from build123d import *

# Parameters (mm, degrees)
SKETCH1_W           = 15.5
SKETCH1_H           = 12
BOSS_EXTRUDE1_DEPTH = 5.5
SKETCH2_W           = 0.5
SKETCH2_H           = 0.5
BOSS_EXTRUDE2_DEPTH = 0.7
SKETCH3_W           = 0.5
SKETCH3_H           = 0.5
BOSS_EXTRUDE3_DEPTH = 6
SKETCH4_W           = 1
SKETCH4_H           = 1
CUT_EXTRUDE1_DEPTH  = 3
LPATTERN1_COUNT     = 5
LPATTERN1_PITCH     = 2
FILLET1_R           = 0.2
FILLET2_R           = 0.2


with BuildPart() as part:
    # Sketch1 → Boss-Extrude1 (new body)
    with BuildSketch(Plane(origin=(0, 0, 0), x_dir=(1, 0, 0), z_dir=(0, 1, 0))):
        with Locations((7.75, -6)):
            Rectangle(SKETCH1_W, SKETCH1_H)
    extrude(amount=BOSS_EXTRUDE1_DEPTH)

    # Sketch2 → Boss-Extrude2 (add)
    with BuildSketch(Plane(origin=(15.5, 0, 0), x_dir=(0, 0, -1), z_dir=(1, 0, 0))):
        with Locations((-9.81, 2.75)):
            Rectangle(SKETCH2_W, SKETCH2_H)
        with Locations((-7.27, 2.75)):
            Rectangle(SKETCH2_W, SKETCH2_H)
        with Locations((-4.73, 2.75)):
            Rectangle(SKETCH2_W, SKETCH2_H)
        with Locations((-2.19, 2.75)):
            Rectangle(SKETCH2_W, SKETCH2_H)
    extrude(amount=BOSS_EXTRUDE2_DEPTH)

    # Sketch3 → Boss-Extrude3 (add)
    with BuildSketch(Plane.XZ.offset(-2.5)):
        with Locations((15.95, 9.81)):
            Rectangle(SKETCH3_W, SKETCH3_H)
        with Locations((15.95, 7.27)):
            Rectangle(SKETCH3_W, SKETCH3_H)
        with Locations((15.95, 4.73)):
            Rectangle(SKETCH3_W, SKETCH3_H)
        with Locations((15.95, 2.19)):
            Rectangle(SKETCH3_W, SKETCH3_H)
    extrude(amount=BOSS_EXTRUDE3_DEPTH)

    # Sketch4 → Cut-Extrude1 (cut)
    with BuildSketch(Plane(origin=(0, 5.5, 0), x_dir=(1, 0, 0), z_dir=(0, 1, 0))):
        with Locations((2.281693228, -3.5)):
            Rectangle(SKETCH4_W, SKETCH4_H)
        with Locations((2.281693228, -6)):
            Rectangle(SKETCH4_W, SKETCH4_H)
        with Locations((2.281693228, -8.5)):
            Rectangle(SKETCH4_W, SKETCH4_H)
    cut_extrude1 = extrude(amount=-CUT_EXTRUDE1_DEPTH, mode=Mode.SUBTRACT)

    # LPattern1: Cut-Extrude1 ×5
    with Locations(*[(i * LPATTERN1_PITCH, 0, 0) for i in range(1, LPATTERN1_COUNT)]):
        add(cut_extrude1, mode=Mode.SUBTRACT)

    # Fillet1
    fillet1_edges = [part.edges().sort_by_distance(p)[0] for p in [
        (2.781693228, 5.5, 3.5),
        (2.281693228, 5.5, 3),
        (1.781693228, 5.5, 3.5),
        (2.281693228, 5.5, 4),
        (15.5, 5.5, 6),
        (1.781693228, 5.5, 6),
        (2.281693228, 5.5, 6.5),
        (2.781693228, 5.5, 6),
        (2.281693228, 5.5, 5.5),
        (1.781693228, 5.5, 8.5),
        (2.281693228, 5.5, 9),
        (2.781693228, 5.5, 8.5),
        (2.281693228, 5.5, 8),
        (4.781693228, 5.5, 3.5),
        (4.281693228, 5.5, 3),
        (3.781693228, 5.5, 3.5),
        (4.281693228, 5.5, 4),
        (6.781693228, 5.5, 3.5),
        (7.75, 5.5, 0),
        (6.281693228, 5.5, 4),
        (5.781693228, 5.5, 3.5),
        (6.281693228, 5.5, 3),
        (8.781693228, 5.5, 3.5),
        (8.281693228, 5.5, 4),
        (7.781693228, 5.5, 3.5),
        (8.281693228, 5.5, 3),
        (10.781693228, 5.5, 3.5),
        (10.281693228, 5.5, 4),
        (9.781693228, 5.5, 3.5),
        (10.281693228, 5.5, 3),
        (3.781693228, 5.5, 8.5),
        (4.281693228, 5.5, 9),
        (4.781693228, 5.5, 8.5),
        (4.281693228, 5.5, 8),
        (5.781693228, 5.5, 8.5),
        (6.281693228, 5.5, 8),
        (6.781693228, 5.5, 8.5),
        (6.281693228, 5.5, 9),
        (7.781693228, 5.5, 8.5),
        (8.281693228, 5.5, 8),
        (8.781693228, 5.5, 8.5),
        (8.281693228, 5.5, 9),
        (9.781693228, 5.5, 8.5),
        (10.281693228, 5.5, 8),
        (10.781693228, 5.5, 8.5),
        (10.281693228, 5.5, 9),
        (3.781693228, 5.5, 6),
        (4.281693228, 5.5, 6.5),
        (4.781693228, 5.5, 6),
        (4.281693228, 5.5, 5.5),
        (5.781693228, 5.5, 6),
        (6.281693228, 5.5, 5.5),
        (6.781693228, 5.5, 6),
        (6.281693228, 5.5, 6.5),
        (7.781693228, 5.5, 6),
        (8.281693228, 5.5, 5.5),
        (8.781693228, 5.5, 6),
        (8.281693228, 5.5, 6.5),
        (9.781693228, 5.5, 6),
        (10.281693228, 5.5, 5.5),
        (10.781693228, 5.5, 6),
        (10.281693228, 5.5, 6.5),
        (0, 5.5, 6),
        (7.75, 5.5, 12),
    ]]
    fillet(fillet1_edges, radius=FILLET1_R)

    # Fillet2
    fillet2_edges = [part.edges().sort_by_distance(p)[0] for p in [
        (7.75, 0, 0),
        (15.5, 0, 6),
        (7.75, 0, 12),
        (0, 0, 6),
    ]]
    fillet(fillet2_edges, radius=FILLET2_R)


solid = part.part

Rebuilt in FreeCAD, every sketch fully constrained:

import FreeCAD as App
import Part
import Sketcher


def edges_at(feature, points):
    """Names of the edges that pass closest to the given points."""
    edges = feature.Shape.Edges
    near = lambda p: min(range(len(edges)), key=lambda i: edges[i].distToShape(Part.Vertex(*p))[0])
    return sorted({f"Edge{near(p) + 1}" for p in points})

doc = App.newDocument("Part")
params = doc.addObject("Spreadsheet::Sheet", "Params")
for row, (alias, value) in enumerate([
    ("sketch1_height", "12 mm"),
    ("sketch1_width", "15.5 mm"),
    ("pad1_length", "5.5 mm"),
    ("sketch2_width", "0.5 mm"),
    ("pad2_length", "0.7 mm"),
    ("sketch3_width", "0.5 mm"),
    ("pad3_length", "6 mm"),
    ("sketch4_width", "1 mm"),
    ("pocket1_length", "3 mm"),
    ("linearpattern_pitch", "2 mm"),
    ("fillet_radius", "0.2 mm"),
    ("fillet2_radius", "0.2 mm"),
], start=1):
    params.set(f"A{row}", alias)
    params.set(f"B{row}", "=" + value)
    params.setAlias(f"B{row}", alias)

body = doc.addObject("PartDesign::Body", "Body")

# Sketch on XZ plane
sketch1 = doc.addObject("Sketcher::SketchObject", "Sketch")
body.addObject(sketch1)
sketch1.AttachmentSupport = (doc.XZ_Plane, [""])
sketch1.MapMode = "FlatFace"
sketch1.addGeometry(Part.LineSegment(App.Vector(0, 0, 0), App.Vector(0, 12, 0)), False)
sketch1.addGeometry(Part.LineSegment(App.Vector(0, 12, 0), App.Vector(16, 12, 0)), False)
sketch1.addGeometry(Part.LineSegment(App.Vector(16, 12, 0), App.Vector(16, 0, 0)), False)
sketch1.addGeometry(Part.LineSegment(App.Vector(16, 0, 0), App.Vector(0, 0, 0)), False)
sketch1.addConstraint(Sketcher.Constraint("Coincident", 0, 2, 1, 1))
sketch1.addConstraint(Sketcher.Constraint("Coincident", 1, 2, 2, 1))
sketch1.addConstraint(Sketcher.Constraint("Coincident", 2, 2, 3, 1))
sketch1.addConstraint(Sketcher.Constraint("Coincident", 3, 2, 0, 1))
sketch1.addConstraint(Sketcher.Constraint("Vertical", 0))
sketch1.addConstraint(Sketcher.Constraint("Horizontal", 1))
sketch1.addConstraint(Sketcher.Constraint("Vertical", 2))
sketch1.addConstraint(Sketcher.Constraint("Horizontal", 3))
sketch1.addConstraint(Sketcher.Constraint("Coincident", 3, 2, -1, 1))
sketch1.addConstraint(Sketcher.Constraint("DistanceY", 0, 1, 0, 2, 12.0))
sketch1.addConstraint(Sketcher.Constraint("DistanceX", 1, 1, 1, 2, 15.5))
sketch1.setExpression("Constraints[9]", "Params.sketch1_height")
sketch1.setExpression("Constraints[10]", "Params.sketch1_width")
pad1 = doc.addObject("PartDesign::Pad", "Pad")
body.addObject(pad1)
pad1.Profile = sketch1
pad1.setExpression("Length", "Params.pad1_length")
pad1.Reversed = True

# Sketch on YZ plane
sketch2 = doc.addObject("Sketcher::SketchObject", "Sketch001")
body.addObject(sketch2)
sketch2.AttachmentSupport = (doc.YZ_Plane, [""])
sketch2.MapMode = "FlatFace"
sketch2.AttachmentOffset = App.Placement(App.Vector(0, 0, 15.5), App.Rotation())
sketch2.addGeometry(Part.LineSegment(App.Vector(3, 10.1, 0), App.Vector(2.5, 10.1, 0)), False)
sketch2.addGeometry(Part.LineSegment(App.Vector(2.5, 10.1, 0), App.Vector(2.5, 9.6, 0)), False)
sketch2.addGeometry(Part.LineSegment(App.Vector(2.5, 9.6, 0), App.Vector(3, 9.6, 0)), False)
sketch2.addGeometry(Part.LineSegment(App.Vector(3, 9.6, 0), App.Vector(3, 10.1, 0)), False)
sketch2.addGeometry(Part.LineSegment(App.Vector(3, 7.5, 0), App.Vector(2.5, 7.5, 0)), False)
sketch2.addGeometry(Part.LineSegment(App.Vector(2.5, 7.5, 0), App.Vector(2.5, 7, 0)), False)
sketch2.addGeometry(Part.LineSegment(App.Vector(2.5, 7, 0), App.Vector(3, 7, 0)), False)
sketch2.addGeometry(Part.LineSegment(App.Vector(3, 7, 0), App.Vector(3, 7.5, 0)), False)
sketch2.addGeometry(Part.LineSegment(App.Vector(3, 5, 0), App.Vector(2.5, 5, 0)), False)
sketch2.addGeometry(Part.LineSegment(App.Vector(2.5, 5, 0), App.Vector(2.5, 4.5, 0)), False)
sketch2.addGeometry(Part.LineSegment(App.Vector(2.5, 4.5, 0), App.Vector(3, 4.5, 0)), False)
sketch2.addGeometry(Part.LineSegment(App.Vector(3, 4.5, 0), App.Vector(3, 5, 0)), False)
sketch2.addGeometry(Part.LineSegment(App.Vector(3, 2.4, 0), App.Vector(2.5, 2.4, 0)), False)
sketch2.addGeometry(Part.LineSegment(App.Vector(2.5, 2.4, 0), App.Vector(2.5, 1.9, 0)), False)
sketch2.addGeometry(Part.LineSegment(App.Vector(2.5, 1.9, 0), App.Vector(3, 1.9, 0)), False)
sketch2.addGeometry(Part.LineSegment(App.Vector(3, 1.9, 0), App.Vector(3, 2.4, 0)), False)
sketch2.addConstraint(Sketcher.Constraint("Coincident", 0, 2, 1, 1))
sketch2.addConstraint(Sketcher.Constraint("Coincident", 1, 2, 2, 1))
sketch2.addConstraint(Sketcher.Constraint("Coincident", 2, 2, 3, 1))
sketch2.addConstraint(Sketcher.Constraint("Coincident", 3, 2, 0, 1))
sketch2.addConstraint(Sketcher.Constraint("Coincident", 4, 2, 5, 1))
sketch2.addConstraint(Sketcher.Constraint("Coincident", 5, 2, 6, 1))
sketch2.addConstraint(Sketcher.Constraint("Coincident", 6, 2, 7, 1))
sketch2.addConstraint(Sketcher.Constraint("Coincident", 7, 2, 4, 1))
sketch2.addConstraint(Sketcher.Constraint("Coincident", 8, 2, 9, 1))
sketch2.addConstraint(Sketcher.Constraint("Coincident", 9, 2, 10, 1))
sketch2.addConstraint(Sketcher.Constraint("Coincident", 10, 2, 11, 1))
sketch2.addConstraint(Sketcher.Constraint("Coincident", 11, 2, 8, 1))
sketch2.addConstraint(Sketcher.Constraint("Coincident", 12, 2, 13, 1))
sketch2.addConstraint(Sketcher.Constraint("Coincident", 13, 2, 14, 1))
sketch2.addConstraint(Sketcher.Constraint("Coincident", 14, 2, 15, 1))
sketch2.addConstraint(Sketcher.Constraint("Coincident", 15, 2, 12, 1))
sketch2.addConstraint(Sketcher.Constraint("Horizontal", 0))
sketch2.addConstraint(Sketcher.Constraint("Vertical", 1))
sketch2.addConstraint(Sketcher.Constraint("Horizontal", 2))
sketch2.addConstraint(Sketcher.Constraint("Vertical", 3))
sketch2.addConstraint(Sketcher.Constraint("Horizontal", 4))
sketch2.addConstraint(Sketcher.Constraint("Vertical", 5))
sketch2.addConstraint(Sketcher.Constraint("Horizontal", 6))
sketch2.addConstraint(Sketcher.Constraint("Vertical", 7))
sketch2.addConstraint(Sketcher.Constraint("Horizontal", 8))
sketch2.addConstraint(Sketcher.Constraint("Vertical", 9))
sketch2.addConstraint(Sketcher.Constraint("Horizontal", 10))
sketch2.addConstraint(Sketcher.Constraint("Vertical", 11))
sketch2.addConstraint(Sketcher.Constraint("Horizontal", 12))
sketch2.addConstraint(Sketcher.Constraint("Vertical", 13))
sketch2.addConstraint(Sketcher.Constraint("Horizontal", 14))
sketch2.addConstraint(Sketcher.Constraint("Vertical", 15))
sketch2.addConstraint(Sketcher.Constraint("Vertical", 1, 2, 4, 2))
sketch2.addConstraint(Sketcher.Constraint("Vertical", 3, 2, 6, 2))
sketch2.addConstraint(Sketcher.Constraint("Vertical", 5, 2, 8, 2))
sketch2.addConstraint(Sketcher.Constraint("Vertical", 7, 2, 10, 2))
sketch2.addConstraint(Sketcher.Constraint("Vertical", 9, 2, 12, 2))
sketch2.addConstraint(Sketcher.Constraint("Vertical", 11, 2, 14, 2))
sketch2.addConstraint(Sketcher.Constraint("Equal", 14, 1))
sketch2.addConstraint(Sketcher.Constraint("Equal", 3, 5))
sketch2.addConstraint(Sketcher.Constraint("Equal", 7, 9))
sketch2.addConstraint(Sketcher.Constraint("Equal", 11, 13))
sketch2.addConstraint(Sketcher.Constraint("DistanceX", 0, 2, 0, 1, 0.5))
sketch2.addConstraint(Sketcher.Constraint("DistanceX", -1, 1, 2, 2, 3.0))
sketch2.addConstraint(Sketcher.Constraint("DistanceY", -1, 1, 0, 2, 10.06))
sketch2.addConstraint(Sketcher.Constraint("DistanceY", -1, 1, 4, 2, 7.52))
sketch2.addConstraint(Sketcher.Constraint("DistanceY", -1, 1, 8, 2, 4.98))
sketch2.addConstraint(Sketcher.Constraint("DistanceY", -1, 1, 12, 2, 2.44))
sketch2.setExpression("Constraints[42]", "Params.sketch2_width")
pad2 = doc.addObject("PartDesign::Pad", "Pad001")
body.addObject(pad2)
pad2.Profile = sketch2
pad2.setExpression("Length", "Params.pad2_length")

# Sketch on XZ plane
sketch3 = doc.addObject("Sketcher::SketchObject", "Sketch002")
body.addObject(sketch3)
sketch3.AttachmentSupport = (doc.XZ_Plane, [""])
sketch3.MapMode = "FlatFace"
sketch3.AttachmentOffset = App.Placement(App.Vector(0, 0, -2.5), App.Rotation())
sketch3.addGeometry(Part.LineSegment(App.Vector(15.7, 10.1, 0), App.Vector(15.7, 9.6, 0)), False)
sketch3.addGeometry(Part.LineSegment(App.Vector(15.7, 9.6, 0), App.Vector(16.2, 9.6, 0)), False)
sketch3.addGeometry(Part.LineSegment(App.Vector(16.2, 9.6, 0), App.Vector(16.2, 10.1, 0)), False)
sketch3.addGeometry(Part.LineSegment(App.Vector(16.2, 10.1, 0), App.Vector(15.7, 10.1, 0)), False)
sketch3.addGeometry(Part.LineSegment(App.Vector(15.7, 7.5, 0), App.Vector(15.7, 7, 0)), False)
sketch3.addGeometry(Part.LineSegment(App.Vector(15.7, 7, 0), App.Vector(16.2, 7, 0)), False)
sketch3.addGeometry(Part.LineSegment(App.Vector(16.2, 7, 0), App.Vector(16.2, 7.5, 0)), False)
sketch3.addGeometry(Part.LineSegment(App.Vector(16.2, 7.5, 0), App.Vector(15.7, 7.5, 0)), False)
sketch3.addGeometry(Part.LineSegment(App.Vector(15.7, 5, 0), App.Vector(15.7, 4.5, 0)), False)
sketch3.addGeometry(Part.LineSegment(App.Vector(15.7, 4.5, 0), App.Vector(16.2, 4.5, 0)), False)
sketch3.addGeometry(Part.LineSegment(App.Vector(16.2, 4.5, 0), App.Vector(16.2, 5, 0)), False)
sketch3.addGeometry(Part.LineSegment(App.Vector(16.2, 5, 0), App.Vector(15.7, 5, 0)), False)
sketch3.addGeometry(Part.LineSegment(App.Vector(15.7, 2.4, 0), App.Vector(15.7, 1.9, 0)), False)
sketch3.addGeometry(Part.LineSegment(App.Vector(15.7, 1.9, 0), App.Vector(16.2, 1.9, 0)), False)
sketch3.addGeometry(Part.LineSegment(App.Vector(16.2, 1.9, 0), App.Vector(16.2, 2.4, 0)), False)
sketch3.addGeometry(Part.LineSegment(App.Vector(16.2, 2.4, 0), App.Vector(15.7, 2.4, 0)), False)
sketch3.addConstraint(Sketcher.Constraint("Coincident", 0, 2, 1, 1))
sketch3.addConstraint(Sketcher.Constraint("Coincident", 1, 2, 2, 1))
sketch3.addConstraint(Sketcher.Constraint("Coincident", 2, 2, 3, 1))
sketch3.addConstraint(Sketcher.Constraint("Coincident", 3, 2, 0, 1))
sketch3.addConstraint(Sketcher.Constraint("Coincident", 4, 2, 5, 1))
sketch3.addConstraint(Sketcher.Constraint("Coincident", 5, 2, 6, 1))
sketch3.addConstraint(Sketcher.Constraint("Coincident", 6, 2, 7, 1))
sketch3.addConstraint(Sketcher.Constraint("Coincident", 7, 2, 4, 1))
sketch3.addConstraint(Sketcher.Constraint("Coincident", 8, 2, 9, 1))
sketch3.addConstraint(Sketcher.Constraint("Coincident", 9, 2, 10, 1))
sketch3.addConstraint(Sketcher.Constraint("Coincident", 10, 2, 11, 1))
sketch3.addConstraint(Sketcher.Constraint("Coincident", 11, 2, 8, 1))
sketch3.addConstraint(Sketcher.Constraint("Coincident", 12, 2, 13, 1))
sketch3.addConstraint(Sketcher.Constraint("Coincident", 13, 2, 14, 1))
sketch3.addConstraint(Sketcher.Constraint("Coincident", 14, 2, 15, 1))
sketch3.addConstraint(Sketcher.Constraint("Coincident", 15, 2, 12, 1))
sketch3.addConstraint(Sketcher.Constraint("Vertical", 0))
sketch3.addConstraint(Sketcher.Constraint("Horizontal", 1))
sketch3.addConstraint(Sketcher.Constraint("Vertical", 2))
sketch3.addConstraint(Sketcher.Constraint("Horizontal", 3))
sketch3.addConstraint(Sketcher.Constraint("Vertical", 4))
sketch3.addConstraint(Sketcher.Constraint("Horizontal", 5))
sketch3.addConstraint(Sketcher.Constraint("Vertical", 6))
sketch3.addConstraint(Sketcher.Constraint("Horizontal", 7))
sketch3.addConstraint(Sketcher.Constraint("Vertical", 8))
sketch3.addConstraint(Sketcher.Constraint("Horizontal", 9))
sketch3.addConstraint(Sketcher.Constraint("Vertical", 10))
sketch3.addConstraint(Sketcher.Constraint("Horizontal", 11))
sketch3.addConstraint(Sketcher.Constraint("Vertical", 12))
sketch3.addConstraint(Sketcher.Constraint("Horizontal", 13))
sketch3.addConstraint(Sketcher.Constraint("Vertical", 14))
sketch3.addConstraint(Sketcher.Constraint("Horizontal", 15))
sketch3.addConstraint(Sketcher.Constraint("Vertical", 3, 2, 4, 2))
sketch3.addConstraint(Sketcher.Constraint("Vertical", 2, 2, 5, 2))
sketch3.addConstraint(Sketcher.Constraint("Vertical", 7, 2, 8, 2))
sketch3.addConstraint(Sketcher.Constraint("Vertical", 6, 2, 9, 2))
sketch3.addConstraint(Sketcher.Constraint("Vertical", 11, 2, 12, 2))
sketch3.addConstraint(Sketcher.Constraint("Vertical", 10, 2, 13, 2))
sketch3.addConstraint(Sketcher.Constraint("Equal", 15, 0))
sketch3.addConstraint(Sketcher.Constraint("Equal", 2, 4))
sketch3.addConstraint(Sketcher.Constraint("Equal", 6, 8))
sketch3.addConstraint(Sketcher.Constraint("Equal", 10, 12))
sketch3.addConstraint(Sketcher.Constraint("DistanceX", 1, 1, 1, 2, 0.5))
sketch3.addConstraint(Sketcher.Constraint("DistanceX", -1, 1, 0, 2, 15.7))
sketch3.addConstraint(Sketcher.Constraint("DistanceY", -1, 1, 0, 2, 9.56))
sketch3.addConstraint(Sketcher.Constraint("DistanceY", -1, 1, 4, 2, 7.02))
sketch3.addConstraint(Sketcher.Constraint("DistanceY", -1, 1, 8, 2, 4.48))
sketch3.addConstraint(Sketcher.Constraint("DistanceY", -1, 1, 12, 2, 1.94))
sketch3.setExpression("Constraints[42]", "Params.sketch3_width")
pad3 = doc.addObject("PartDesign::Pad", "Pad002")
body.addObject(pad3)
pad3.Profile = sketch3
pad3.setExpression("Length", "Params.pad3_length")

# Sketch on XZ plane
sketch4 = doc.addObject("Sketcher::SketchObject", "Sketch003")
body.addObject(sketch4)
sketch4.AttachmentSupport = (doc.XZ_Plane, [""])
sketch4.MapMode = "FlatFace"
sketch4.AttachmentOffset = App.Placement(App.Vector(0, 0, -5.5), App.Rotation())
sketch4.addGeometry(Part.LineSegment(App.Vector(1.8, 3, 0), App.Vector(1.8, 4, 0)), False)
sketch4.addGeometry(Part.LineSegment(App.Vector(1.8, 4, 0), App.Vector(2.8, 4, 0)), False)
sketch4.addGeometry(Part.LineSegment(App.Vector(2.8, 4, 0), App.Vector(2.8, 3, 0)), False)
sketch4.addGeometry(Part.LineSegment(App.Vector(2.8, 3, 0), App.Vector(1.8, 3, 0)), False)
sketch4.addGeometry(Part.LineSegment(App.Vector(1.8, 5.5, 0), App.Vector(1.8, 6.5, 0)), False)
sketch4.addGeometry(Part.LineSegment(App.Vector(1.8, 6.5, 0), App.Vector(2.8, 6.5, 0)), False)
sketch4.addGeometry(Part.LineSegment(App.Vector(2.8, 6.5, 0), App.Vector(2.8, 5.5, 0)), False)
sketch4.addGeometry(Part.LineSegment(App.Vector(2.8, 5.5, 0), App.Vector(1.8, 5.5, 0)), False)
sketch4.addGeometry(Part.LineSegment(App.Vector(1.8, 8, 0), App.Vector(1.8, 9, 0)), False)
sketch4.addGeometry(Part.LineSegment(App.Vector(1.8, 9, 0), App.Vector(2.8, 9, 0)), False)
sketch4.addGeometry(Part.LineSegment(App.Vector(2.8, 9, 0), App.Vector(2.8, 8, 0)), False)
sketch4.addGeometry(Part.LineSegment(App.Vector(2.8, 8, 0), App.Vector(1.8, 8, 0)), False)
sketch4.addConstraint(Sketcher.Constraint("Coincident", 0, 2, 1, 1))
sketch4.addConstraint(Sketcher.Constraint("Coincident", 1, 2, 2, 1))
sketch4.addConstraint(Sketcher.Constraint("Coincident", 2, 2, 3, 1))
sketch4.addConstraint(Sketcher.Constraint("Coincident", 3, 2, 0, 1))
sketch4.addConstraint(Sketcher.Constraint("Coincident", 4, 2, 5, 1))
sketch4.addConstraint(Sketcher.Constraint("Coincident", 5, 2, 6, 1))
sketch4.addConstraint(Sketcher.Constraint("Coincident", 6, 2, 7, 1))
sketch4.addConstraint(Sketcher.Constraint("Coincident", 7, 2, 4, 1))
sketch4.addConstraint(Sketcher.Constraint("Coincident", 8, 2, 9, 1))
sketch4.addConstraint(Sketcher.Constraint("Coincident", 9, 2, 10, 1))
sketch4.addConstraint(Sketcher.Constraint("Coincident", 10, 2, 11, 1))
sketch4.addConstraint(Sketcher.Constraint("Coincident", 11, 2, 8, 1))
sketch4.addConstraint(Sketcher.Constraint("Vertical", 0))
sketch4.addConstraint(Sketcher.Constraint("Horizontal", 1))
sketch4.addConstraint(Sketcher.Constraint("Vertical", 2))
sketch4.addConstraint(Sketcher.Constraint("Horizontal", 3))
sketch4.addConstraint(Sketcher.Constraint("Vertical", 4))
sketch4.addConstraint(Sketcher.Constraint("Horizontal", 5))
sketch4.addConstraint(Sketcher.Constraint("Vertical", 6))
sketch4.addConstraint(Sketcher.Constraint("Horizontal", 7))
sketch4.addConstraint(Sketcher.Constraint("Vertical", 8))
sketch4.addConstraint(Sketcher.Constraint("Horizontal", 9))
sketch4.addConstraint(Sketcher.Constraint("Vertical", 10))
sketch4.addConstraint(Sketcher.Constraint("Horizontal", 11))
sketch4.addConstraint(Sketcher.Constraint("Vertical", 3, 2, 4, 2))
sketch4.addConstraint(Sketcher.Constraint("Vertical", 2, 2, 5, 2))
sketch4.addConstraint(Sketcher.Constraint("Vertical", 7, 2, 8, 2))
sketch4.addConstraint(Sketcher.Constraint("Vertical", 6, 2, 9, 2))
sketch4.addConstraint(Sketcher.Constraint("Equal", 11, 0))
sketch4.addConstraint(Sketcher.Constraint("Equal", 2, 4))
sketch4.addConstraint(Sketcher.Constraint("Equal", 6, 8))
sketch4.addConstraint(Sketcher.Constraint("DistanceX", 1, 1, 1, 2, 1.0))
sketch4.addConstraint(Sketcher.Constraint("DistanceY", -1, 1, 0, 2, 4.0))
sketch4.addConstraint(Sketcher.Constraint("DistanceY", -1, 1, 8, 2, 9.0))
sketch4.addConstraint(Sketcher.Constraint("DistanceY", -1, 1, 4, 2, 6.5))
sketch4.addConstraint(Sketcher.Constraint("DistanceX", -1, 1, 0, 2, 1.781693))
sketch4.setExpression("Constraints[31]", "Params.sketch4_width")
pocket1 = doc.addObject("PartDesign::Pocket", "Pocket")
body.addObject(pocket1)
pocket1.Profile = sketch4
pocket1.setExpression("Length", "Params.pocket1_length")
pocket1.Reversed = True
doc.recompute()

linearpattern = doc.addObject("PartDesign::LinearPattern", "LinearPattern")
body.addObject(linearpattern)
linearpattern.Originals = [pocket1]
linearpattern.Direction = (doc.X_Axis, [""])
linearpattern.Mode = "offset"
linearpattern.setExpression("Offset", "Params.linearpattern_pitch")
linearpattern.Occurrences = 5
body.Tip = linearpattern
doc.recompute()

fillet = doc.addObject("PartDesign::Fillet", "Fillet")
body.addObject(fillet)
fillet.Base = (linearpattern, edges_at(linearpattern, [
    (2.782, 5.5, 3.5),
    (2.282, 5.5, 3),
    (1.782, 5.5, 3.5),
    (2.282, 5.5, 4),
    (15.5, 5.5, 6),
    (1.782, 5.5, 6),
    (2.282, 5.5, 6.5),
    (2.782, 5.5, 6),
    (2.282, 5.5, 5.5),
    (1.782, 5.5, 8.5),
    (2.282, 5.5, 9),
    (2.782, 5.5, 8.5),
    (2.282, 5.5, 8),
    (4.782, 5.5, 3.5),
    (4.282, 5.5, 3),
    (3.782, 5.5, 3.5),
    (4.282, 5.5, 4),
    (6.782, 5.5, 3.5),
    (7.75, 5.5, 0),
    (6.282, 5.5, 4),
    (5.782, 5.5, 3.5),
    (6.282, 5.5, 3),
    (8.782, 5.5, 3.5),
    (8.282, 5.5, 4),
    (7.782, 5.5, 3.5),
    (8.282, 5.5, 3),
    (10.782, 5.5, 3.5),
    (10.282, 5.5, 4),
    (9.782, 5.5, 3.5),
    (10.282, 5.5, 3),
    (3.782, 5.5, 8.5),
    (4.282, 5.5, 9),
    (4.782, 5.5, 8.5),
    (4.282, 5.5, 8),
    (5.782, 5.5, 8.5),
    (6.282, 5.5, 8),
    (6.782, 5.5, 8.5),
    (6.282, 5.5, 9),
    (7.782, 5.5, 8.5),
    (8.282, 5.5, 8),
    (8.782, 5.5, 8.5),
    (8.282, 5.5, 9),
    (9.782, 5.5, 8.5),
    (10.282, 5.5, 8),
    (10.782, 5.5, 8.5),
    (10.282, 5.5, 9),
    (3.782, 5.5, 6),
    (4.282, 5.5, 6.5),
    (4.782, 5.5, 6),
    (4.282, 5.5, 5.5),
    (5.782, 5.5, 6),
    (6.282, 5.5, 5.5),
    (6.782, 5.5, 6),
    (6.282, 5.5, 6.5),
    (7.782, 5.5, 6),
    (8.282, 5.5, 5.5),
    (8.782, 5.5, 6),
    (8.282, 5.5, 6.5),
    (9.782, 5.5, 6),
    (10.282, 5.5, 5.5),
    (10.782, 5.5, 6),
    (10.282, 5.5, 6.5),
    (0, 5.5, 6),
    (7.75, 5.5, 12),
]))
fillet.setExpression("Radius", "Params.fillet_radius")
doc.recompute()

fillet2 = doc.addObject("PartDesign::Fillet", "Fillet001")
body.addObject(fillet2)
fillet2.Base = (fillet, edges_at(fillet, [
    (7.75, 0, 0),
    (15.5, 0, 6),
    (7.75, 0, 12),
    (0, 0, 6),
]))
fillet2.setExpression("Radius", "Params.fillet2_radius")

doc.recompute()
